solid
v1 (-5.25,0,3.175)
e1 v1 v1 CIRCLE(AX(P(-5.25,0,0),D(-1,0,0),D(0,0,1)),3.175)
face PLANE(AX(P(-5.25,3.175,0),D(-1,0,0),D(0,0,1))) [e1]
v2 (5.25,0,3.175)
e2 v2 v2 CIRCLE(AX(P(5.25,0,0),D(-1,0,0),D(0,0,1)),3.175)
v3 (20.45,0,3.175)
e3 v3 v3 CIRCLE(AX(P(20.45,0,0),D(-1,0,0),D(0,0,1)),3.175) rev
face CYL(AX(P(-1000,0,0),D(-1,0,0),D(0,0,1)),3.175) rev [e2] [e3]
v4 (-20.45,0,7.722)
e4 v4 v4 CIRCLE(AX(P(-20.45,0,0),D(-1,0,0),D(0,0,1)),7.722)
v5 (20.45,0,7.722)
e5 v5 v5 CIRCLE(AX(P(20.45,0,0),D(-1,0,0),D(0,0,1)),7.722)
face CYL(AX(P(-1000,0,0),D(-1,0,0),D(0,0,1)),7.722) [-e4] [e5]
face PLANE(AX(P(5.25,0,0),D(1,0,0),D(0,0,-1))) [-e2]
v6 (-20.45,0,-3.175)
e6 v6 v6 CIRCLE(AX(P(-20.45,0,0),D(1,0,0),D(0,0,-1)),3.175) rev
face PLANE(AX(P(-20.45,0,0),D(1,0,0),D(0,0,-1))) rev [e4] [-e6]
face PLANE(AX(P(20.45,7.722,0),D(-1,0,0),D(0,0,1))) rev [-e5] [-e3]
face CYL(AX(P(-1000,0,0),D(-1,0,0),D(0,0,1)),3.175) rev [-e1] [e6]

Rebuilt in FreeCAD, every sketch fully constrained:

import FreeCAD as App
import Part
import Sketcher
Q = App.Units.Quantity


def add_polygon(sketch, points):
    """Adds a closed chain of lines whose ends are joined by coincident constraints."""
    first, n = sketch.GeometryCount, len(points)
    for a, b in zip(points, points[1:] + points[:1]):
        sketch.addGeometry(Part.LineSegment(App.Vector(*a, 0), App.Vector(*b, 0)), False)
    for i in range(n):
        sketch.addConstraint(Sketcher.Constraint("Coincident", first + i, 2, first + (i + 1) % n, 1))

doc = App.newDocument("Part")
body = doc.addObject("PartDesign::Body", "Body")

# Sketch on XY plane
sketch1 = doc.addObject("Sketcher::SketchObject", "Sketch")
body.addObject(sketch1)
sketch1.AttachmentSupport = (doc.XY_Plane, [""])
sketch1.MapMode = "FlatFace"
add_polygon(sketch1, [(-20, 8), (-20, 0), (20, 0), (20, 8)])  # lines 0-3
sketch1.addConstraint([
    Sketcher.Constraint("Vertical", 0),
    Sketcher.Constraint("Horizontal", 1),
    Sketcher.Constraint("Vertical", 2),
    Sketcher.Constraint("Horizontal", 3),
    Sketcher.Constraint("Symmetric", 0, 2, 1, 2, -1, 1),
    Sketcher.Constraint("DistanceX", 1, 1, 1, 2, Q("40.9 mm")),
    Sketcher.Constraint("DistanceY", 0, 2, 0, 1, Q("7.722 mm")),
])
revolution = doc.addObject("PartDesign::Revolution", "Revolution")
body.addObject(revolution)
revolution.Profile = sketch1
revolution.ReferenceAxis = (sketch1, ["H_Axis"])
revolution.Angle = 360

# Sketch on XY plane
sketch2 = doc.addObject("Sketcher::SketchObject", "Sketch001")
body.addObject(sketch2)
sketch2.AttachmentSupport = (doc.XY_Plane, [""])
sketch2.MapMode = "FlatFace"
add_polygon(sketch2, [(-21.4, 3.2), (-21.4, 0), (-5.2, 0), (-5.2, 3.2)])  # lines 0-3
sketch2.addConstraint([
    Sketcher.Constraint("Vertical", 0),
    Sketcher.Constraint("Horizontal", 1),
    Sketcher.Constraint("Vertical", 2),
    Sketcher.Constraint("Horizontal", 3),
    Sketcher.Constraint("PointOnObject", 0, 2, -1),
    Sketcher.Constraint("DistanceX", 1, 1, 1, 2, Q("16.2 mm")),
    Sketcher.Constraint("DistanceY", 0, 2, 0, 1, Q("3.175 mm")),
    Sketcher.Constraint("DistanceX", 0, 2, -1, 1, Q("21.45 mm")),
])
groove = doc.addObject("PartDesign::Groove", "Groove")
body.addObject(groove)
groove.Profile = sketch2
groove.ReferenceAxis = (sketch2, ["H_Axis"])
groove.Angle = 360

# Sketch on XY plane
sketch3 = doc.addObject("Sketcher::SketchObject", "Sketch002")
body.addObject(sketch3)
sketch3.AttachmentSupport = (doc.XY_Plane, [""])
sketch3.MapMode = "FlatFace"
add_polygon(sketch3, [(5.2, 3.2), (5.2, 0), (21.4, 0), (21.4, 3.2)])  # lines 0-3
sketch3.addConstraint([
    Sketcher.Constraint("Vertical", 0),
    Sketcher.Constraint("Horizontal", 1),
    Sketcher.Constraint("Vertical", 2),
    Sketcher.Constraint("Horizontal", 3),
    Sketcher.Constraint("PointOnObject", 0, 2, -1),
    Sketcher.Constraint("DistanceX", 1, 1, 1, 2, Q("16.2 mm")),
    Sketcher.Constraint("DistanceY", 0, 2, 0, 1, Q("3.175 mm")),
    Sketcher.Constraint("DistanceX", -1, 1, 0, 2, Q("5.25 mm")),
])
groove2 = doc.addObject("PartDesign::Groove", "Groove001")
body.addObject(groove2)
groove2.Profile = sketch3
groove2.ReferenceAxis = (sketch3, ["H_Axis"])
groove2.Angle = 360

doc.recompute()
